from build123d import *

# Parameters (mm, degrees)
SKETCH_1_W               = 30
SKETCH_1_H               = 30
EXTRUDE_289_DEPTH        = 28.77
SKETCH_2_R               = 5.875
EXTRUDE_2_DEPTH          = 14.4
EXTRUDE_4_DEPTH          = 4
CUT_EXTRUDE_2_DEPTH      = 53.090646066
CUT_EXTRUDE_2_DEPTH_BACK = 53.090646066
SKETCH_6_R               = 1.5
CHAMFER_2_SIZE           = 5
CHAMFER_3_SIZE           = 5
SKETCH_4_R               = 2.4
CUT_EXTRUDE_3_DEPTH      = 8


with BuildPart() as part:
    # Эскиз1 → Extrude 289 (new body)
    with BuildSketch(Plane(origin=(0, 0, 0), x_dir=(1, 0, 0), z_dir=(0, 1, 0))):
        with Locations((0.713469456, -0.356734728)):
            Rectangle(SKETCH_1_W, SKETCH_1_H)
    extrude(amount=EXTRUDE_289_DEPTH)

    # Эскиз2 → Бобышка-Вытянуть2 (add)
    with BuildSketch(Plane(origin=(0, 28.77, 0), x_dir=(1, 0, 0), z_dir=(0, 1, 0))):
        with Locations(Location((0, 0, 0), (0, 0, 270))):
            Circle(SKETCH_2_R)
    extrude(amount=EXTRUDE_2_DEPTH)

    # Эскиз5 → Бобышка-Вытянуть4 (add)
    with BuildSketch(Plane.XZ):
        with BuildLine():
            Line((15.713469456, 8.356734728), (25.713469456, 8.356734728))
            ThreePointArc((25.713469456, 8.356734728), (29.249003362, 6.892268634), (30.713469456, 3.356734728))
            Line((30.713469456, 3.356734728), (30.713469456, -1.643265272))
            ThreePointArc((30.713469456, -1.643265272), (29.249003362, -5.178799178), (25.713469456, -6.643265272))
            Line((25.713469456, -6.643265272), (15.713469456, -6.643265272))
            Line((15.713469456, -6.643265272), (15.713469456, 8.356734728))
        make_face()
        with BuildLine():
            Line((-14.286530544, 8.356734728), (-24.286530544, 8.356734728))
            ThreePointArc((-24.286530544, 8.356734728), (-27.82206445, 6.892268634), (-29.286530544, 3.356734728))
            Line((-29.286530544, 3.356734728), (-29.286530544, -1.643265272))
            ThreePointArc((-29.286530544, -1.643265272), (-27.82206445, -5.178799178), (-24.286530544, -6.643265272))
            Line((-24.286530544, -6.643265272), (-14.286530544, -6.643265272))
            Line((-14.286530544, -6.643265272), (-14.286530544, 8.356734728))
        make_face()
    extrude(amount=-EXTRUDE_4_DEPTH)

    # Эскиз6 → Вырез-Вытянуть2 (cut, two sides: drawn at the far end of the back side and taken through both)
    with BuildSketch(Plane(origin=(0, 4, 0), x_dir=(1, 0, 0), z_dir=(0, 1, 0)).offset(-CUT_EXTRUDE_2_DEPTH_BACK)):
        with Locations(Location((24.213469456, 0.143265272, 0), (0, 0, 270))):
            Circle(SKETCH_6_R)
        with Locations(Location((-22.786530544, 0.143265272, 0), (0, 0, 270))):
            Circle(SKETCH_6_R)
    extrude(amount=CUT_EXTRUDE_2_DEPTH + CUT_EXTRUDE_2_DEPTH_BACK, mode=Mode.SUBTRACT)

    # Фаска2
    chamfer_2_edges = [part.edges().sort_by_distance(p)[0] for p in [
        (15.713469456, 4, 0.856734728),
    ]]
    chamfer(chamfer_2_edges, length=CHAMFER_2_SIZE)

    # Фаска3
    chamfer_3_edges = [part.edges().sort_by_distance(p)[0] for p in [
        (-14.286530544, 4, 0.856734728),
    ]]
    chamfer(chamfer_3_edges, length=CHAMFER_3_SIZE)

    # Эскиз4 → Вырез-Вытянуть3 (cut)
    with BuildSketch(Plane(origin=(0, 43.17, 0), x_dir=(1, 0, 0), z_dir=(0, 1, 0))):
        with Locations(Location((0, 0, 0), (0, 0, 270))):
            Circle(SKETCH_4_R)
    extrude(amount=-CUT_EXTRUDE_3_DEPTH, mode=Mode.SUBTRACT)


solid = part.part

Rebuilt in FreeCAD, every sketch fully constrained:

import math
import FreeCAD as App
import Part
import Sketcher
from FreeCAD import Vector
Q = App.Units.Quantity


def edges_at(feature, points):
    """Names of the edges that pass closest to the given points."""
    edges = feature.Shape.Edges
    near = lambda p: min(range(len(edges)), key=lambda i: edges[i].distToShape(Part.Vertex(*p))[0])
    return sorted({f"Edge{near(p) + 1}" for p in points})

doc = App.newDocument("Part")
body = doc.addObject("PartDesign::Body", "Body")

# Sketch on XZ plane
sketch1 = doc.addObject("Sketcher::SketchObject", "Sketch")
body.addObject(sketch1)
sketch1.AttachmentSupport = (doc.XZ_Plane, [""])
sketch1.MapMode = "FlatFace"
sketch1.addGeometry([
    Part.LineSegment(Vector(-14, -15, 0), Vector(-14, 15, 0)),
    Part.LineSegment(Vector(-14, 15, 0), Vector(16, 15, 0)),
    Part.LineSegment(Vector(16, 15, 0), Vector(16, -15, 0)),
    Part.LineSegment(Vector(16, -15, 0), Vector(-14, -15, 0)),
], False)
sketch1.addConstraint([
    Sketcher.Constraint("Coincident", 0, 2, 1, 1),
    Sketcher.Constraint("Coincident", 1, 2, 2, 1),
    Sketcher.Constraint("Coincident", 2, 2, 3, 1),
    Sketcher.Constraint("Coincident", 3, 2, 0, 1),
    Sketcher.Constraint("Vertical", 0),
    Sketcher.Constraint("Horizontal", 1),
    Sketcher.Constraint("Vertical", 2),
    Sketcher.Constraint("Horizontal", 3),
    Sketcher.Constraint("Equal", 3, 0),
    Sketcher.Constraint("DistanceX", 1, 1, 1, 2, Q("30 mm")),
    Sketcher.Constraint("DistanceX", 0, 2, -1, 1, Q("14.286531 mm")),
    Sketcher.Constraint("DistanceY", -1, 1, 0, 2, Q("15.356735 mm")),
])
pad1 = doc.addObject("PartDesign::Pad", "Pad")
body.addObject(pad1)
pad1.Profile = sketch1
pad1.Length = 28.77
pad1.Reversed = True

# Sketch on XZ plane
sketch2 = doc.addObject("Sketcher::SketchObject", "Sketch001")
body.addObject(sketch2)
sketch2.AttachmentSupport = (doc.XZ_Plane, [""])
sketch2.MapMode = "FlatFace"
sketch2.AttachmentOffset = App.Placement(Vector(0, 0, -28.77), App.Rotation())
sketch2.addGeometry(Part.Circle(Vector(0, 0, 0), Vector(0, 0, 1), 6), False)
sketch2.addConstraint([
    Sketcher.Constraint("Coincident", 0, 3, -1, 1),
    Sketcher.Constraint("Diameter", 0, Q("11.75 mm")),
])
pad2 = doc.addObject("PartDesign::Pad", "Pad001")
body.addObject(pad2)
pad2.Profile = sketch2
pad2.Length = 14.4
pad2.Reversed = True

# Sketch on XZ plane
sketch3 = doc.addObject("Sketcher::SketchObject", "Sketch002")
body.addObject(sketch3)
sketch3.AttachmentSupport = (doc.XZ_Plane, [""])
sketch3.MapMode = "FlatFace"
sketch3.addGeometry([
    Part.LineSegment(Vector(26, 8, 0), Vector(16, 8, 0)),  # 0
    Part.LineSegment(Vector(16, 8, 0), Vector(16, -7, 0)),  # 1
    Part.LineSegment(Vector(16, -7, 0), Vector(26, -7, 0)),  # 2
    Part.ArcOfCircle(Part.Circle(Vector(26, -2, 0), Vector(0, 0, 1), 5), math.radians(-90), math.radians(0)),  # 3
    Part.LineSegment(Vector(31, -2, 0), Vector(31, 3, 0)),  # 4
    Part.ArcOfCircle(Part.Circle(Vector(26, 3, 0), Vector(0, 0, 1), 5), math.radians(0), math.radians(90)),  # 5
    Part.LineSegment(Vector(-14, 8, 0), Vector(-24, 8, 0)),  # 6
    Part.ArcOfCircle(Part.Circle(Vector(-24, 3, 0), Vector(0, 0, 1), 5), math.radians(90), math.radians(180)),  # 7
    Part.LineSegment(Vector(-29, 3, 0), Vector(-29, -2, 0)),  # 8
    Part.ArcOfCircle(Part.Circle(Vector(-24, -2, 0), Vector(0, 0, 1), 5), math.radians(180), math.radians(270)),  # 9
    Part.LineSegment(Vector(-24, -7, 0), Vector(-14, -7, 0)),  # 10
    Part.LineSegment(Vector(-14, -7, 0), Vector(-14, 8, 0)),  # 11
], False)
sketch3.addConstraint([
    Sketcher.Constraint("Coincident", 0, 2, 1, 1),
    Sketcher.Constraint("Coincident", 1, 2, 2, 1),
    Sketcher.Constraint("Tangent", 2, 2, 3, 1),
    Sketcher.Constraint("Tangent", 3, 2, 4, 1),
    Sketcher.Constraint("Tangent", 4, 2, 5, 1),
    Sketcher.Constraint("Tangent", 5, 2, 0, 1),
    Sketcher.Constraint("Tangent", 6, 2, 7, 1),
    Sketcher.Constraint("Tangent", 7, 2, 8, 1),
    Sketcher.Constraint("Tangent", 8, 2, 9, 1),
    Sketcher.Constraint("Tangent", 9, 2, 10, 1),
    Sketcher.Constraint("Coincident", 10, 2, 11, 1),
    Sketcher.Constraint("Coincident", 11, 2, 6, 1),
    Sketcher.Constraint("Horizontal", 0),
    Sketcher.Constraint("Vertical", 1),
    Sketcher.Constraint("Horizontal", 2),
    Sketcher.Constraint("Vertical", 4),
    Sketcher.Constraint("Horizontal", 6),
    Sketcher.Constraint("Vertical", 8),
    Sketcher.Constraint("Horizontal", 10),
    Sketcher.Constraint("Vertical", 11),
    Sketcher.Constraint("Equal", 3, 5),
    Sketcher.Constraint("Equal", 5, 7),
    Sketcher.Constraint("Equal", 7, 9),
    Sketcher.Constraint("Horizontal", 5, 3, 7, 3),
    Sketcher.Constraint("Horizontal", 3, 3, 9, 3),
    Sketcher.Constraint("Equal", 2, 6),
    Sketcher.Constraint("Radius", 3, Q("5 mm")),
    Sketcher.Constraint("DistanceX", 0, 2, 0, 1, Q("10 mm")),
    Sketcher.Constraint("DistanceY", 1, 2, 1, 1, Q("15 mm")),
    Sketcher.Constraint("DistanceX", 7, 3, 5, 3, Q("50 mm")),
    Sketcher.Constraint("DistanceX", -1, 1, 3, 3, Q("25.713469 mm")),
    Sketcher.Constraint("DistanceY", 3, 3, -1, 1, Q("1.643265 mm")),
])
pad3 = doc.addObject("PartDesign::Pad", "Pad002")
body.addObject(pad3)
pad3.Profile = sketch3
pad3.Length = 4
pad3.Reversed = True

# Sketch on XZ plane
sketch4 = doc.addObject("Sketcher::SketchObject", "Sketch003")
body.addObject(sketch4)
sketch4.AttachmentSupport = (doc.XZ_Plane, [""])
sketch4.MapMode = "FlatFace"
sketch4.AttachmentOffset = App.Placement(Vector(0, 0, -4), App.Rotation())
sketch4.addGeometry([
    Part.Circle(Vector(24.2, -0.1, 0), Vector(0, 0, 1), 1.5),
    Part.Circle(Vector(-22.8, -0.1, 0), Vector(0, 0, 1), 1.5),
], False)
sketch4.addConstraint([
    Sketcher.Constraint("Equal", 0, 1),
    Sketcher.Constraint("Horizontal", 0, 3, 1, 3),
    Sketcher.Constraint("Diameter", 0, Q("3 mm")),
    Sketcher.Constraint("DistanceX", 1, 3, 0, 3, Q("47 mm")),
    Sketcher.Constraint("DistanceX", -1, 1, 0, 3, Q("24.213469 mm")),
    Sketcher.Constraint("DistanceY", 0, 3, -1, 1, Q("0.143265 mm")),
])
pocket1 = doc.addObject("PartDesign::Pocket", "Pocket")
body.addObject(pocket1)
pocket1.Profile = sketch4
pocket1.Type = "ThroughAll"
pocket1.Midplane = True
doc.recompute()

chamfer = doc.addObject("PartDesign::Chamfer", "Chamfer")
body.addObject(chamfer)
chamfer.Base = (pocket1, edges_at(pocket1, [(15.713, 4, 0.857)]))
chamfer.Size = 5
doc.recompute()

chamfer2 = doc.addObject("PartDesign::Chamfer", "Chamfer001")
body.addObject(chamfer2)
chamfer2.Base = (chamfer, edges_at(chamfer, [(-14.287, 4, 0.857)]))
chamfer2.Size = 5

# Sketch on XZ plane
sketch5 = doc.addObject("Sketcher::SketchObject", "Sketch004")
body.addObject(sketch5)
sketch5.AttachmentSupport = (doc.XZ_Plane, [""])
sketch5.MapMode = "FlatFace"
sketch5.AttachmentOffset = App.Placement(Vector(0, 0, -43.17), App.Rotation())
sketch5.addGeometry(Part.Circle(Vector(0, 0, 0), Vector(0, 0, 1), 2.4), False)
sketch5.addConstraint([
    Sketcher.Constraint("Coincident", 0, 3, -1, 1),
    Sketcher.Constraint("Diameter", 0, Q("4.8 mm")),
])
pocket2 = doc.addObject("PartDesign::Pocket", "Pocket001")
body.addObject(pocket2)
pocket2.Profile = sketch5
pocket2.Length = 8
pocket2.Reversed = True

doc.recompute()
